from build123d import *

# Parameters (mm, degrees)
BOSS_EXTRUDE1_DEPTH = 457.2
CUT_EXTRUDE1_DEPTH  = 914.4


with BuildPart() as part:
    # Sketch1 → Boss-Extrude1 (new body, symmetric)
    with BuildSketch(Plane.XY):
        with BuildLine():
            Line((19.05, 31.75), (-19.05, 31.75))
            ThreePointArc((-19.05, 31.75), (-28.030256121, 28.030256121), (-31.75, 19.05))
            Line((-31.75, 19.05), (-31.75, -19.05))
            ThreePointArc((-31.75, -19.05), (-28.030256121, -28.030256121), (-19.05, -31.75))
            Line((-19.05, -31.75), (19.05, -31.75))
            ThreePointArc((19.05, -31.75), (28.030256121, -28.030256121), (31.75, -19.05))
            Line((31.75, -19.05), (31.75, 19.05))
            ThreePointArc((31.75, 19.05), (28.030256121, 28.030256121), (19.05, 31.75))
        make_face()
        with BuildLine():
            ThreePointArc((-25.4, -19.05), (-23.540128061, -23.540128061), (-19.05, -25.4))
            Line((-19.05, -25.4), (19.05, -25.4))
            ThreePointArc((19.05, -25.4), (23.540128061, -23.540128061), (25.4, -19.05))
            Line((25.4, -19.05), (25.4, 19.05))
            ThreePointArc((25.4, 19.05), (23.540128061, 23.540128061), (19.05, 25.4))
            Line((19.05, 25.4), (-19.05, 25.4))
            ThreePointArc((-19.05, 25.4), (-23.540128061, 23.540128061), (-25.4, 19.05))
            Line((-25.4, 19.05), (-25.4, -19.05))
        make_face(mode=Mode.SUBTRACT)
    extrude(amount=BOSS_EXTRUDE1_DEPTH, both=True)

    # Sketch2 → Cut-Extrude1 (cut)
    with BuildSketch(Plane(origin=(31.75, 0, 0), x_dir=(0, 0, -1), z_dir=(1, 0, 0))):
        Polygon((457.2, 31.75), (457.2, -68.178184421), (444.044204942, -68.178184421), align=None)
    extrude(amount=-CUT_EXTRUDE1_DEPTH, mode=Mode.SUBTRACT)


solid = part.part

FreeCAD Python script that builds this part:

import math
import FreeCAD as App
import Part
import Sketcher
from FreeCAD import Vector
Q = App.Units.Quantity

doc = App.newDocument("Part")
body = doc.addObject("PartDesign::Body", "Body")

# Sketch on XY plane
sketch1 = body.newObject("Sketcher::SketchObject", "Sketch")
sketch1.AttachmentSupport = (doc.getObject("XY_Plane"), [""])
sketch1.MapMode = "FlatFace"
sketch1.addGeometry(Part.LineSegment(Vector(19.05, 31.75, 0), Vector(-19.05, 31.75, 0)), False)
sketch1.addGeometry(Part.ArcOfCircle(Part.Circle(Vector(-19.05, 19.05, 0), Vector(0, 0, 1), 12.7), math.radians(90), math.radians(180)), False)
sketch1.addGeometry(Part.LineSegment(Vector(-31.75, 19.05, 0), Vector(-31.75, -19.05, 0)), False)
sketch1.addGeometry(Part.ArcOfCircle(Part.Circle(Vector(-19.05, -19.05, 0), Vector(0, 0, 1), 12.7), math.radians(180), math.radians(270)), False)
sketch1.addGeometry(Part.LineSegment(Vector(-19.05, -31.75, 0), Vector(19.05, -31.75, 0)), False)
sketch1.addGeometry(Part.ArcOfCircle(Part.Circle(Vector(19.05, -19.05, 0), Vector(0, 0, 1), 12.7), math.radians(-90), math.radians(0)), False)
sketch1.addGeometry(Part.LineSegment(Vector(31.75, -19.05, 0), Vector(31.75, 19.05, 0)), False)
sketch1.addGeometry(Part.ArcOfCircle(Part.Circle(Vector(19.05, 19.05, 0), Vector(0, 0, 1), 12.7), math.radians(0), math.radians(90)), False)
sketch1.addGeometry(Part.ArcOfCircle(Part.Circle(Vector(-19.05, -19.05, 0), Vector(0, 0, 1), 6.35), math.radians(180), math.radians(270)), False)
sketch1.addGeometry(Part.LineSegment(Vector(-25.4, -19.05, 0), Vector(-25.4, 19.05, 0)), False)
sketch1.addGeometry(Part.ArcOfCircle(Part.Circle(Vector(-19.05, 19.05, 0), Vector(0, 0, 1), 6.35), math.radians(90), math.radians(180)), False)
sketch1.addGeometry(Part.LineSegment(Vector(-19.05, 25.4, 0), Vector(19.05, 25.4, 0)), False)
sketch1.addGeometry(Part.ArcOfCircle(Part.Circle(Vector(19.05, 19.05, 0), Vector(0, 0, 1), 6.35), math.radians(0), math.radians(90)), False)
sketch1.addGeometry(Part.LineSegment(Vector(25.4, 19.05, 0), Vector(25.4, -19.05, 0)), False)
sketch1.addGeometry(Part.ArcOfCircle(Part.Circle(Vector(19.05, -19.05, 0), Vector(0, 0, 1), 6.35), math.radians(-90), math.radians(0)), False)
sketch1.addGeometry(Part.LineSegment(Vector(19.05, -25.4, 0), Vector(-19.05, -25.4, 0)), False)
sketch1.addConstraint(Sketcher.Constraint("Tangent", 0, 2, 1, 1))
sketch1.addConstraint(Sketcher.Constraint("Tangent", 1, 2, 2, 1))
sketch1.addConstraint(Sketcher.Constraint("Tangent", 2, 2, 3, 1))
sketch1.addConstraint(Sketcher.Constraint("Tangent", 3, 2, 4, 1))
sketch1.addConstraint(Sketcher.Constraint("Tangent", 4, 2, 5, 1))
sketch1.addConstraint(Sketcher.Constraint("Tangent", 5, 2, 6, 1))
sketch1.addConstraint(Sketcher.Constraint("Tangent", 6, 2, 7, 1))
sketch1.addConstraint(Sketcher.Constraint("Tangent", 7, 2, 0, 1))
sketch1.addConstraint(Sketcher.Constraint("Tangent", 8, 1, 9, 1))
sketch1.addConstraint(Sketcher.Constraint("Tangent", 9, 2, 10, 2))
sketch1.addConstraint(Sketcher.Constraint("Tangent", 10, 1, 11, 1))
sketch1.addConstraint(Sketcher.Constraint("Tangent", 11, 2, 12, 2))
sketch1.addConstraint(Sketcher.Constraint("Tangent", 12, 1, 13, 1))
sketch1.addConstraint(Sketcher.Constraint("Tangent", 13, 2, 14, 2))
sketch1.addConstraint(Sketcher.Constraint("Tangent", 14, 1, 15, 1))
sketch1.addConstraint(Sketcher.Constraint("Tangent", 15, 2, 8, 2))
sketch1.addConstraint(Sketcher.Constraint("Horizontal", 0))
sketch1.addConstraint(Sketcher.Constraint("Vertical", 2))
sketch1.addConstraint(Sketcher.Constraint("Horizontal", 4))
sketch1.addConstraint(Sketcher.Constraint("Vertical", 6))
sketch1.addConstraint(Sketcher.Constraint("Vertical", 9))
sketch1.addConstraint(Sketcher.Constraint("Horizontal", 11))
sketch1.addConstraint(Sketcher.Constraint("Vertical", 13))
sketch1.addConstraint(Sketcher.Constraint("Horizontal", 15))
sketch1.addConstraint(Sketcher.Constraint("Coincident", 8, 3, 3, 3))
sketch1.addConstraint(Sketcher.Constraint("Coincident", 10, 3, 1, 3))
sketch1.addConstraint(Sketcher.Constraint("Coincident", 12, 3, 7, 3))
sketch1.addConstraint(Sketcher.Constraint("Equal", 1, 3))
sketch1.addConstraint(Sketcher.Constraint("Equal", 3, 5))
sketch1.addConstraint(Sketcher.Constraint("Equal", 5, 7))
sketch1.addConstraint(Sketcher.Constraint("Equal", 12, 14))
sketch1.addConstraint(Sketcher.Constraint("Symmetric", 1, 3, 5, 3, -1, 1))
sketch1.addConstraint(Sketcher.Constraint("Equal", 15, 2))
sketch1.addConstraint(Sketcher.Constraint("Radius", 1, Q("0.5 in")))
sketch1.addConstraint(Sketcher.Constraint("Radius", 8, Q("0.25 in")))
sketch1.addConstraint(Sketcher.Constraint("DistanceX", 0, 2, 0, 1, Q("1.5 in")))
pad1 = body.newObject("PartDesign::Pad", "Pad")
pad1.Profile = sketch1
pad1.Length = Q("36 in")
pad1.Midplane = True

# Sketch on YZ plane
sketch2 = body.newObject("Sketcher::SketchObject", "Sketch001")
sketch2.AttachmentSupport = (doc.getObject("YZ_Plane"), [""])
sketch2.MapMode = "FlatFace"
sketch2.AttachmentOffset = App.Placement(Vector(0, 0, 1.25 * 25.4), App.Rotation())
sketch2.addGeometry(Part.LineSegment(Vector(-68.178184, -457.2, 0), Vector(31.75, -457.2, 0)), False)
sketch2.addGeometry(Part.LineSegment(Vector(31.75, -457.2, 0), Vector(-68.178184, -444.044205, 0)), False)
sketch2.addGeometry(Part.LineSegment(Vector(-68.178184, -444.044205, 0), Vector(-68.178184, -457.2, 0)), False)
sketch2.addConstraint(Sketcher.Constraint("Coincident", 0, 2, 1, 1))
sketch2.addConstraint(Sketcher.Constraint("Coincident", 1, 2, 2, 1))
sketch2.addConstraint(Sketcher.Constraint("Coincident", 2, 2, 0, 1))
sketch2.addConstraint(Sketcher.Constraint("Horizontal", 0))
sketch2.addConstraint(Sketcher.Constraint("Vertical", 2))
sketch2.addConstraint(Sketcher.Constraint("DistanceY", 0, 2, -1, 1, Q("18 in")))
sketch2.addConstraint(Sketcher.Constraint("Angle", 1, Q("172.5 deg")))
sketch2.addConstraint(Sketcher.Constraint("DistanceX", -1, 1, 0, 2, Q("1.25 in")))
sketch2.addConstraint(Sketcher.Constraint("Distance", 1, Q("100.790461 mm")))
pocket1 = body.newObject("PartDesign::Pocket", "Pocket")
pocket1.Profile = sketch2
pocket1.Length = Q("36 in")

doc.recompute()
